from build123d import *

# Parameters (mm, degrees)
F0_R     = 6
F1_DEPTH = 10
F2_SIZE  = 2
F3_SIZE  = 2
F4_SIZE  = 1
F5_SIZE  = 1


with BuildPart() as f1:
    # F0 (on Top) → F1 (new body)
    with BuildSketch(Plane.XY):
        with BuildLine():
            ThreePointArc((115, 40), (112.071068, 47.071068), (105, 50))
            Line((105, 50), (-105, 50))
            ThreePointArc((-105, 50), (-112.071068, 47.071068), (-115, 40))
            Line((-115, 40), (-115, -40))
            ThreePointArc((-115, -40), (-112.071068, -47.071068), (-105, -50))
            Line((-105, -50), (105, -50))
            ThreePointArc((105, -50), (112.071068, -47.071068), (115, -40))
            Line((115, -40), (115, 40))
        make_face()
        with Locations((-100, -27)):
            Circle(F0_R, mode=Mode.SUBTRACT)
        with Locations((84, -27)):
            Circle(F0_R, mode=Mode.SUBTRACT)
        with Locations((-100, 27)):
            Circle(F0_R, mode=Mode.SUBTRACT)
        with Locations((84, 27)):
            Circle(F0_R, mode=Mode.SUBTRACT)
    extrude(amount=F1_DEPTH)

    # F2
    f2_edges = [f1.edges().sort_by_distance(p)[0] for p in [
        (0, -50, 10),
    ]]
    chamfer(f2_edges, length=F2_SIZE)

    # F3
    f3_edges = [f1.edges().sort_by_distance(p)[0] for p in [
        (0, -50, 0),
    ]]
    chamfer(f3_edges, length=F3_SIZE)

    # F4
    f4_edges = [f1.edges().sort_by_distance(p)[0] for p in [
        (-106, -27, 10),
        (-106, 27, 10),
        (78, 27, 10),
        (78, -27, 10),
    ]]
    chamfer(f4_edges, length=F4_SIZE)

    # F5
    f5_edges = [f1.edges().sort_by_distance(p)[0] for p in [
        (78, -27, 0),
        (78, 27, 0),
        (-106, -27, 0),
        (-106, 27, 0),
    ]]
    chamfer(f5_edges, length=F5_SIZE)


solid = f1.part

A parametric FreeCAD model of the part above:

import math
import FreeCAD as App
import Part
import Sketcher

V = App.Vector


def edges_at(feature, points):
    """Names of the edges that pass closest to the given points."""
    edges = feature.Shape.Edges
    near = lambda p: min(range(len(edges)), key=lambda i: edges[i].distToShape(Part.Vertex(*p))[0])
    return sorted({f"Edge{near(p) + 1}" for p in points})

doc = App.newDocument("Part")
body = doc.addObject("PartDesign::Body", "Body")

# Sketch on XY plane
sketch1 = doc.addObject("Sketcher::SketchObject", "Sketch")
body.addObject(sketch1)
sketch1.AttachmentSupport = (doc.XY_Plane, [""])
sketch1.MapMode = "FlatFace"
sketch1.addGeometry([
    Part.ArcOfCircle(Part.Circle(V(105, 40, 0), V(0, 0, 1), 10), math.radians(0), math.radians(90)),  # 0
    Part.LineSegment(V(105, 50, 0), V(-105, 50, 0)),  # 1
    Part.ArcOfCircle(Part.Circle(V(-105, 40, 0), V(0, 0, 1), 10), math.radians(90), math.radians(180)),  # 2
    Part.LineSegment(V(-115, 40, 0), V(-115, -40, 0)),  # 3
    Part.ArcOfCircle(Part.Circle(V(-105, -40, 0), V(0, 0, 1), 10), math.radians(180), math.radians(270)),  # 4
    Part.LineSegment(V(-105, -50, 0), V(105, -50, 0)),  # 5
    Part.ArcOfCircle(Part.Circle(V(105, -40, 0), V(0, 0, 1), 10), math.radians(-90), math.radians(0)),  # 6
    Part.LineSegment(V(115, -40, 0), V(115, 40, 0)),  # 7
    Part.Circle(V(-100, -27, 0), V(0, 0, 1), 6),  # 8
    Part.Circle(V(84, -27, 0), V(0, 0, 1), 6),  # 9
    Part.Circle(V(-100, 27, 0), V(0, 0, 1), 6),  # 10
    Part.Circle(V(84, 27, 0), V(0, 0, 1), 6),  # 11
], False)
sketch1.addConstraint([
    Sketcher.Constraint("Tangent", 0, 2, 1, 1),
    Sketcher.Constraint("Tangent", 1, 2, 2, 1),
    Sketcher.Constraint("Tangent", 2, 2, 3, 1),
    Sketcher.Constraint("Tangent", 3, 2, 4, 1),
    Sketcher.Constraint("Tangent", 4, 2, 5, 1),
    Sketcher.Constraint("Tangent", 5, 2, 6, 1),
    Sketcher.Constraint("Tangent", 6, 2, 7, 1),
    Sketcher.Constraint("Tangent", 7, 2, 0, 1),
    Sketcher.Constraint("Horizontal", 1),
    Sketcher.Constraint("Vertical", 3),
    Sketcher.Constraint("Horizontal", 5),
    Sketcher.Constraint("Vertical", 7),
    Sketcher.Constraint("Equal", 0, 2),
    Sketcher.Constraint("Equal", 2, 4),
    Sketcher.Constraint("Equal", 4, 6),
    Sketcher.Constraint("Equal", 8, 9),
    Sketcher.Constraint("Equal", 9, 10),
    Sketcher.Constraint("Equal", 10, 11),
    Sketcher.Constraint("Symmetric", 0, 3, 4, 3, -1, 1),
    Sketcher.Constraint("Symmetric", 8, 3, 10, 3, -1),
    Sketcher.Constraint("Symmetric", 9, 3, 11, 3, -1),
    Sketcher.Constraint("Horizontal", 8, 3, 9, 3),
    Sketcher.Constraint("Diameter", 8, 12.0),
    Sketcher.Constraint("Radius", 0, 9.999999),
    Sketcher.Constraint("DistanceX", 1, 2, 1, 1, 210.0),
    Sketcher.Constraint("DistanceY", 3, 2, 3, 1, 80.0),
    Sketcher.Constraint("DistanceX", 8, 3, -1, 1, 100.0),
    Sketcher.Constraint("DistanceY", 8, 3, -1, 1, 27.0),
    Sketcher.Constraint("DistanceX", -1, 1, 9, 3, 84.0),
])
pad1 = doc.addObject("PartDesign::Pad", "Pad")
body.addObject(pad1)
pad1.Profile = sketch1
pad1.Length = 10
doc.recompute()

chamfer = doc.addObject("PartDesign::Chamfer", "Chamfer")
body.addObject(chamfer)
chamfer.Base = (pad1, edges_at(pad1, [(0, -50, 10)]))
chamfer.Size = 2
doc.recompute()

chamfer2 = doc.addObject("PartDesign::Chamfer", "Chamfer001")
body.addObject(chamfer2)
chamfer2.Base = (chamfer, edges_at(chamfer, [(0, -50, 0)]))
chamfer2.Size = 2
doc.recompute()

chamfer3 = doc.addObject("PartDesign::Chamfer", "Chamfer002")
body.addObject(chamfer3)
chamfer3.Base = (chamfer2, edges_at(chamfer2, [
    (-106, -27, 10),
    (-106, 27, 10),
    (78, 27, 10),
    (78, -27, 10),
]))
chamfer3.Size = 1
doc.recompute()

chamfer4 = doc.addObject("PartDesign::Chamfer", "Chamfer003")
body.addObject(chamfer4)
chamfer4.Base = (chamfer3, edges_at(chamfer3, [
    (78, -27, 0),
    (78, 27, 0),
    (-106, -27, 0),
    (-106, 27, 0),
]))
chamfer4.Size = 1

doc.recompute()
